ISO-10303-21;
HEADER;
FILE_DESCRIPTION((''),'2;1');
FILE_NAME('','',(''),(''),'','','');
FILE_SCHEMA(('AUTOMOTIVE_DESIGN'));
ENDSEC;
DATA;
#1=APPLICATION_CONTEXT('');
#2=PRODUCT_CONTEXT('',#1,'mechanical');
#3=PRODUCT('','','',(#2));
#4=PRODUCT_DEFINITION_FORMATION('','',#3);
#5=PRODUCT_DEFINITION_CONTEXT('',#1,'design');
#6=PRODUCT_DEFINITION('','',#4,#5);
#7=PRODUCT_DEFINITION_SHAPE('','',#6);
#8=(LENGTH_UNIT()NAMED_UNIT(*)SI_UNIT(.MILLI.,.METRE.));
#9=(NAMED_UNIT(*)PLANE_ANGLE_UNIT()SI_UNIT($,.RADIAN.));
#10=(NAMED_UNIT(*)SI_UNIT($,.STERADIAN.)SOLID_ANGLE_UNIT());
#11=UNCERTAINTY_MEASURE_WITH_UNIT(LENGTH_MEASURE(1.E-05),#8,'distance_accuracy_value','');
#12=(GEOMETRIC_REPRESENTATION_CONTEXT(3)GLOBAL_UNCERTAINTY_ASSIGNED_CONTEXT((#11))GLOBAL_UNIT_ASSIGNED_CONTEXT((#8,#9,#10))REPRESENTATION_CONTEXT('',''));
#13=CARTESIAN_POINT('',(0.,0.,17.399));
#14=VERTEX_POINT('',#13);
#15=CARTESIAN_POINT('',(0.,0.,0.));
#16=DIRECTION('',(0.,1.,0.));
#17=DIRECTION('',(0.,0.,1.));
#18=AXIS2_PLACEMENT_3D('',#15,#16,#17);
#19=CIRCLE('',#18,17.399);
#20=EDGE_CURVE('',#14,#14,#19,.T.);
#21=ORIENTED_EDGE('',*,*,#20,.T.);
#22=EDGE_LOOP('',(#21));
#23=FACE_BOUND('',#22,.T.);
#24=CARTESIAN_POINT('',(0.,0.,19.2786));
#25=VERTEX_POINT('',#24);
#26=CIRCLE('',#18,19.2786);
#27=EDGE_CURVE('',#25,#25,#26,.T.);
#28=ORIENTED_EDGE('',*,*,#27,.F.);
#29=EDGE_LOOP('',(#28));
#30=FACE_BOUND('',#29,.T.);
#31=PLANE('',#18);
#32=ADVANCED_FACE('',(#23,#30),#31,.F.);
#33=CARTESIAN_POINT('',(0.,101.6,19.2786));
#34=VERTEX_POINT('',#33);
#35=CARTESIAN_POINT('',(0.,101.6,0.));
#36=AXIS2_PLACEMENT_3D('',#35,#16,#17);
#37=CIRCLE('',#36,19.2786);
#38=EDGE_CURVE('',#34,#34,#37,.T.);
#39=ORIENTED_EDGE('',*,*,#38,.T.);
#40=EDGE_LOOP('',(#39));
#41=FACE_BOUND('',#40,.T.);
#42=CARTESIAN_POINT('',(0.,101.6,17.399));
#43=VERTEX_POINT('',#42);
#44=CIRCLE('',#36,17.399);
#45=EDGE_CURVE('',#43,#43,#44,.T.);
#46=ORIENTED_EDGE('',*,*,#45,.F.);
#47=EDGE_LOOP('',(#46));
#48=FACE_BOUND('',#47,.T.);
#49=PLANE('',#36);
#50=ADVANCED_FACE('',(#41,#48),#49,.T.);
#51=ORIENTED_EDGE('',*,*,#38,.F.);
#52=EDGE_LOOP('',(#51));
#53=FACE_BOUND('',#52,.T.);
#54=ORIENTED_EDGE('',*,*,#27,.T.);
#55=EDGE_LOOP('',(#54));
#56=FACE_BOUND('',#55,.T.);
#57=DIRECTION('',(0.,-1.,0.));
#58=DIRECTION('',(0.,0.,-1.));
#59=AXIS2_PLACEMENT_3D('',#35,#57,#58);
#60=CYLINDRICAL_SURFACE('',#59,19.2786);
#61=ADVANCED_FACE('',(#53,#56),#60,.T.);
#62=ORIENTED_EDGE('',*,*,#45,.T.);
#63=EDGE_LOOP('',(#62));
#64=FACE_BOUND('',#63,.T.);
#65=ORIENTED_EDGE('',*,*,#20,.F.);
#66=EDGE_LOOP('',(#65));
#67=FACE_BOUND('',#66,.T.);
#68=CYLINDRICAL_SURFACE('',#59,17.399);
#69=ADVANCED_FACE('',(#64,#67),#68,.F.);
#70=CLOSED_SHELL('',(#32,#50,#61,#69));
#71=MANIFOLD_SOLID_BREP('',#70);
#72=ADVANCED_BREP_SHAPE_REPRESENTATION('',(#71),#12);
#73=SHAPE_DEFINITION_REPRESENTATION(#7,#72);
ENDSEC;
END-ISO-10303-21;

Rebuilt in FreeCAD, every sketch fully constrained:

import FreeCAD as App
import Part
import Sketcher
from FreeCAD import Vector
Q = App.Units.Quantity

doc = App.newDocument("Part")
body = doc.addObject("PartDesign::Body", "Body")

sketch1 = body.newObject("Sketcher::SketchObject", "Sketch")
sketch1.AttachmentSupport = (doc.getObject("XZ_Plane"), [""])
sketch1.MapMode = "FlatFace"
sketch1.addGeometry([
    Part.Circle(Vector(0, 0, 0), Vector(0, 0, 1), 19),
    Part.Circle(Vector(0, 0, 0), Vector(0, 0, 1), 17),
], False)
sketch1.addConstraint([
    Sketcher.Constraint("Coincident", 0, 3, -1, 1),
    Sketcher.Constraint("Coincident", 1, 3, -1, 1),
    Sketcher.Constraint("Diameter", 1, Q("1.37 in")),
    Sketcher.Constraint("Diameter", 0, Q("1.518 in")),
])
pad1 = body.newObject("PartDesign::Pad", "Pad")
pad1.Profile = sketch1
pad1.Length = Q("4 in")
pad1.Reversed = True

doc.recompute()
